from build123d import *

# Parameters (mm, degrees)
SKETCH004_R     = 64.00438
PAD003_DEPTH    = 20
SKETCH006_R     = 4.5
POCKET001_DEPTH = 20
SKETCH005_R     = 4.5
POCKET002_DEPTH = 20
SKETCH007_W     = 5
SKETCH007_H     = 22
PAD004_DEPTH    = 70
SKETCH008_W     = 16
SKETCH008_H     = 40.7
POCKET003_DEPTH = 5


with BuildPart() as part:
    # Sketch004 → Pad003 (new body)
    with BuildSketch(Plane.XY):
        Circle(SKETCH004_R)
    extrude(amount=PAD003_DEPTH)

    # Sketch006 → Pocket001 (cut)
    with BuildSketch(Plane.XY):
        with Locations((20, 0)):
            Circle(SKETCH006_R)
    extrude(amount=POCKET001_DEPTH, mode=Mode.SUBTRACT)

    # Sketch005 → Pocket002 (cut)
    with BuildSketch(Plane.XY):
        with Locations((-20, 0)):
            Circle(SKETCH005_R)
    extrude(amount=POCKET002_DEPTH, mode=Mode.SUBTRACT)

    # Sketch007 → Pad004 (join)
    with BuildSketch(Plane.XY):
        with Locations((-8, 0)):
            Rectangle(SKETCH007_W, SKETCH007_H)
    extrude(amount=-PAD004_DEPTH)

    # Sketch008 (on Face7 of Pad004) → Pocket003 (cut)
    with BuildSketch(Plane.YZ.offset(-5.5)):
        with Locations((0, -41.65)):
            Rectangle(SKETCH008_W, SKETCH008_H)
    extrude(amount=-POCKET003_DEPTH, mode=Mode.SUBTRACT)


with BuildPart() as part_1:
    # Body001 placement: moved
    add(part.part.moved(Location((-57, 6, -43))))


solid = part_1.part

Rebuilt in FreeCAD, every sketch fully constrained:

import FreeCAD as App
import Part
import Sketcher

V = App.Vector

doc = App.newDocument("Part")
body = doc.addObject("PartDesign::Body", "Body")

# Sketch on XY plane
sketch1 = doc.addObject("Sketcher::SketchObject", "Sketch")
body.addObject(sketch1)
sketch1.AttachmentSupport = (doc.XY_Plane, [""])
sketch1.MapMode = "FlatFace"
sketch1.addGeometry(Part.Circle(V(0, 0, 0), V(0, 0, 1), 64), False)
sketch1.addConstraint(Sketcher.Constraint("Coincident", 0, 3, -1, 1))
sketch1.addConstraint(Sketcher.Constraint("Diameter", 0, 128.00876))
pad1 = doc.addObject("PartDesign::Pad", "Pad")
body.addObject(pad1)
pad1.Profile = sketch1
pad1.Length = 20

# Sketch on XY plane
sketch2 = doc.addObject("Sketcher::SketchObject", "Sketch001")
body.addObject(sketch2)
sketch2.AttachmentSupport = (doc.XY_Plane, [""])
sketch2.MapMode = "FlatFace"
sketch2.addGeometry(Part.Circle(V(20, 0, 0), V(0, 0, 1), 4.5), False)
sketch2.addConstraint(Sketcher.Constraint("PointOnObject", 0, 3, -1))
sketch2.addConstraint(Sketcher.Constraint("Diameter", 0, 9.0))
sketch2.addConstraint(Sketcher.Constraint("DistanceX", -1, 1, 0, 3, 20.0))
pocket1 = doc.addObject("PartDesign::Pocket", "Pocket")
body.addObject(pocket1)
pocket1.Profile = sketch2
pocket1.Length = 20
pocket1.Reversed = True

# Sketch on XY plane
sketch3 = doc.addObject("Sketcher::SketchObject", "Sketch002")
body.addObject(sketch3)
sketch3.AttachmentSupport = (doc.XY_Plane, [""])
sketch3.MapMode = "FlatFace"
sketch3.addGeometry(Part.Circle(V(-20, 0, 0), V(0, 0, 1), 4.5), False)
sketch3.addConstraint(Sketcher.Constraint("PointOnObject", 0, 3, -1))
sketch3.addConstraint(Sketcher.Constraint("Diameter", 0, 9.0))
sketch3.addConstraint(Sketcher.Constraint("DistanceX", 0, 3, -1, 1, 20.0))
pocket2 = doc.addObject("PartDesign::Pocket", "Pocket001")
body.addObject(pocket2)
pocket2.Profile = sketch3
pocket2.Length = 20
pocket2.Reversed = True

# Sketch on XY plane
sketch4 = doc.addObject("Sketcher::SketchObject", "Sketch003")
body.addObject(sketch4)
sketch4.AttachmentSupport = (doc.XY_Plane, [""])
sketch4.MapMode = "FlatFace"
sketch4.addGeometry(Part.LineSegment(V(-10, 11, 0), V(-10, -11, 0)), False)
sketch4.addGeometry(Part.LineSegment(V(-10, -11, 0), V(-6, -11, 0)), False)
sketch4.addGeometry(Part.LineSegment(V(-6, -11, 0), V(-6, 11, 0)), False)
sketch4.addGeometry(Part.LineSegment(V(-6, 11, 0), V(-10, 11, 0)), False)
sketch4.addConstraint(Sketcher.Constraint("Coincident", 0, 2, 1, 1))
sketch4.addConstraint(Sketcher.Constraint("Coincident", 1, 2, 2, 1))
sketch4.addConstraint(Sketcher.Constraint("Coincident", 2, 2, 3, 1))
sketch4.addConstraint(Sketcher.Constraint("Coincident", 3, 2, 0, 1))
sketch4.addConstraint(Sketcher.Constraint("Vertical", 0))
sketch4.addConstraint(Sketcher.Constraint("Horizontal", 1))
sketch4.addConstraint(Sketcher.Constraint("Vertical", 2))
sketch4.addConstraint(Sketcher.Constraint("Horizontal", 3))
sketch4.addConstraint(Sketcher.Constraint("DistanceX", 1, 1, 1, 2, 5.0))
sketch4.addConstraint(Sketcher.Constraint("DistanceY", 0, 2, 0, 1, 22.0))
sketch4.addConstraint(Sketcher.Constraint("DistanceY", 0, 2, -1, 1, 11.0))
sketch4.addConstraint(Sketcher.Constraint("DistanceX", 0, 2, -1, 1, 10.5))
pad2 = doc.addObject("PartDesign::Pad", "Pad001")
body.addObject(pad2)
pad2.Profile = sketch4
pad2.Length = 70
pad2.Reversed = True

# Sketch on YZ plane
sketch5 = doc.addObject("Sketcher::SketchObject", "Sketch004")
body.addObject(sketch5)
sketch5.AttachmentSupport = (doc.YZ_Plane, [""])
sketch5.MapMode = "FlatFace"
sketch5.AttachmentOffset = App.Placement(V(0, 0, -5.5), App.Rotation())
sketch5.addGeometry(Part.LineSegment(V(-8, -21, 0), V(-8, -62, 0)), False)
sketch5.addGeometry(Part.LineSegment(V(-8, -62, 0), V(8, -62, 0)), False)
sketch5.addGeometry(Part.LineSegment(V(8, -62, 0), V(8, -21, 0)), False)
sketch5.addGeometry(Part.LineSegment(V(8, -21, 0), V(-8, -21, 0)), False)
sketch5.addConstraint(Sketcher.Constraint("Coincident", 0, 2, 1, 1))
sketch5.addConstraint(Sketcher.Constraint("Coincident", 1, 2, 2, 1))
sketch5.addConstraint(Sketcher.Constraint("Coincident", 2, 2, 3, 1))
sketch5.addConstraint(Sketcher.Constraint("Coincident", 3, 2, 0, 1))
sketch5.addConstraint(Sketcher.Constraint("Vertical", 0))
sketch5.addConstraint(Sketcher.Constraint("Horizontal", 1))
sketch5.addConstraint(Sketcher.Constraint("Vertical", 2))
sketch5.addConstraint(Sketcher.Constraint("Horizontal", 3))
sketch5.addConstraint(Sketcher.Constraint("DistanceX", 1, 1, 1, 2, 16.0))
sketch5.addConstraint(Sketcher.Constraint("DistanceY", 0, 2, 0, 1, 40.7))
sketch5.addConstraint(Sketcher.Constraint("DistanceX", 0, 2, -1, 1, 8.0))
sketch5.addConstraint(Sketcher.Constraint("DistanceY", 0, 2, -1, 1, 62.0))
pocket3 = doc.addObject("PartDesign::Pocket", "Pocket002")
body.addObject(pocket3)
pocket3.Profile = sketch5
pocket3.Length = 5
body2 = doc.addObject("PartDesign::Body", "Body001")
doc.recompute()

body.Placement = App.Placement(V(-57, 6, -43), App.Rotation(V(0, 0, 1), 0))
boolean = doc.addObject("PartDesign::Boolean", "Boolean")
body2.addObject(boolean)
boolean.Type = "Fuse"
boolean.addObjects([body])

doc.recompute()
